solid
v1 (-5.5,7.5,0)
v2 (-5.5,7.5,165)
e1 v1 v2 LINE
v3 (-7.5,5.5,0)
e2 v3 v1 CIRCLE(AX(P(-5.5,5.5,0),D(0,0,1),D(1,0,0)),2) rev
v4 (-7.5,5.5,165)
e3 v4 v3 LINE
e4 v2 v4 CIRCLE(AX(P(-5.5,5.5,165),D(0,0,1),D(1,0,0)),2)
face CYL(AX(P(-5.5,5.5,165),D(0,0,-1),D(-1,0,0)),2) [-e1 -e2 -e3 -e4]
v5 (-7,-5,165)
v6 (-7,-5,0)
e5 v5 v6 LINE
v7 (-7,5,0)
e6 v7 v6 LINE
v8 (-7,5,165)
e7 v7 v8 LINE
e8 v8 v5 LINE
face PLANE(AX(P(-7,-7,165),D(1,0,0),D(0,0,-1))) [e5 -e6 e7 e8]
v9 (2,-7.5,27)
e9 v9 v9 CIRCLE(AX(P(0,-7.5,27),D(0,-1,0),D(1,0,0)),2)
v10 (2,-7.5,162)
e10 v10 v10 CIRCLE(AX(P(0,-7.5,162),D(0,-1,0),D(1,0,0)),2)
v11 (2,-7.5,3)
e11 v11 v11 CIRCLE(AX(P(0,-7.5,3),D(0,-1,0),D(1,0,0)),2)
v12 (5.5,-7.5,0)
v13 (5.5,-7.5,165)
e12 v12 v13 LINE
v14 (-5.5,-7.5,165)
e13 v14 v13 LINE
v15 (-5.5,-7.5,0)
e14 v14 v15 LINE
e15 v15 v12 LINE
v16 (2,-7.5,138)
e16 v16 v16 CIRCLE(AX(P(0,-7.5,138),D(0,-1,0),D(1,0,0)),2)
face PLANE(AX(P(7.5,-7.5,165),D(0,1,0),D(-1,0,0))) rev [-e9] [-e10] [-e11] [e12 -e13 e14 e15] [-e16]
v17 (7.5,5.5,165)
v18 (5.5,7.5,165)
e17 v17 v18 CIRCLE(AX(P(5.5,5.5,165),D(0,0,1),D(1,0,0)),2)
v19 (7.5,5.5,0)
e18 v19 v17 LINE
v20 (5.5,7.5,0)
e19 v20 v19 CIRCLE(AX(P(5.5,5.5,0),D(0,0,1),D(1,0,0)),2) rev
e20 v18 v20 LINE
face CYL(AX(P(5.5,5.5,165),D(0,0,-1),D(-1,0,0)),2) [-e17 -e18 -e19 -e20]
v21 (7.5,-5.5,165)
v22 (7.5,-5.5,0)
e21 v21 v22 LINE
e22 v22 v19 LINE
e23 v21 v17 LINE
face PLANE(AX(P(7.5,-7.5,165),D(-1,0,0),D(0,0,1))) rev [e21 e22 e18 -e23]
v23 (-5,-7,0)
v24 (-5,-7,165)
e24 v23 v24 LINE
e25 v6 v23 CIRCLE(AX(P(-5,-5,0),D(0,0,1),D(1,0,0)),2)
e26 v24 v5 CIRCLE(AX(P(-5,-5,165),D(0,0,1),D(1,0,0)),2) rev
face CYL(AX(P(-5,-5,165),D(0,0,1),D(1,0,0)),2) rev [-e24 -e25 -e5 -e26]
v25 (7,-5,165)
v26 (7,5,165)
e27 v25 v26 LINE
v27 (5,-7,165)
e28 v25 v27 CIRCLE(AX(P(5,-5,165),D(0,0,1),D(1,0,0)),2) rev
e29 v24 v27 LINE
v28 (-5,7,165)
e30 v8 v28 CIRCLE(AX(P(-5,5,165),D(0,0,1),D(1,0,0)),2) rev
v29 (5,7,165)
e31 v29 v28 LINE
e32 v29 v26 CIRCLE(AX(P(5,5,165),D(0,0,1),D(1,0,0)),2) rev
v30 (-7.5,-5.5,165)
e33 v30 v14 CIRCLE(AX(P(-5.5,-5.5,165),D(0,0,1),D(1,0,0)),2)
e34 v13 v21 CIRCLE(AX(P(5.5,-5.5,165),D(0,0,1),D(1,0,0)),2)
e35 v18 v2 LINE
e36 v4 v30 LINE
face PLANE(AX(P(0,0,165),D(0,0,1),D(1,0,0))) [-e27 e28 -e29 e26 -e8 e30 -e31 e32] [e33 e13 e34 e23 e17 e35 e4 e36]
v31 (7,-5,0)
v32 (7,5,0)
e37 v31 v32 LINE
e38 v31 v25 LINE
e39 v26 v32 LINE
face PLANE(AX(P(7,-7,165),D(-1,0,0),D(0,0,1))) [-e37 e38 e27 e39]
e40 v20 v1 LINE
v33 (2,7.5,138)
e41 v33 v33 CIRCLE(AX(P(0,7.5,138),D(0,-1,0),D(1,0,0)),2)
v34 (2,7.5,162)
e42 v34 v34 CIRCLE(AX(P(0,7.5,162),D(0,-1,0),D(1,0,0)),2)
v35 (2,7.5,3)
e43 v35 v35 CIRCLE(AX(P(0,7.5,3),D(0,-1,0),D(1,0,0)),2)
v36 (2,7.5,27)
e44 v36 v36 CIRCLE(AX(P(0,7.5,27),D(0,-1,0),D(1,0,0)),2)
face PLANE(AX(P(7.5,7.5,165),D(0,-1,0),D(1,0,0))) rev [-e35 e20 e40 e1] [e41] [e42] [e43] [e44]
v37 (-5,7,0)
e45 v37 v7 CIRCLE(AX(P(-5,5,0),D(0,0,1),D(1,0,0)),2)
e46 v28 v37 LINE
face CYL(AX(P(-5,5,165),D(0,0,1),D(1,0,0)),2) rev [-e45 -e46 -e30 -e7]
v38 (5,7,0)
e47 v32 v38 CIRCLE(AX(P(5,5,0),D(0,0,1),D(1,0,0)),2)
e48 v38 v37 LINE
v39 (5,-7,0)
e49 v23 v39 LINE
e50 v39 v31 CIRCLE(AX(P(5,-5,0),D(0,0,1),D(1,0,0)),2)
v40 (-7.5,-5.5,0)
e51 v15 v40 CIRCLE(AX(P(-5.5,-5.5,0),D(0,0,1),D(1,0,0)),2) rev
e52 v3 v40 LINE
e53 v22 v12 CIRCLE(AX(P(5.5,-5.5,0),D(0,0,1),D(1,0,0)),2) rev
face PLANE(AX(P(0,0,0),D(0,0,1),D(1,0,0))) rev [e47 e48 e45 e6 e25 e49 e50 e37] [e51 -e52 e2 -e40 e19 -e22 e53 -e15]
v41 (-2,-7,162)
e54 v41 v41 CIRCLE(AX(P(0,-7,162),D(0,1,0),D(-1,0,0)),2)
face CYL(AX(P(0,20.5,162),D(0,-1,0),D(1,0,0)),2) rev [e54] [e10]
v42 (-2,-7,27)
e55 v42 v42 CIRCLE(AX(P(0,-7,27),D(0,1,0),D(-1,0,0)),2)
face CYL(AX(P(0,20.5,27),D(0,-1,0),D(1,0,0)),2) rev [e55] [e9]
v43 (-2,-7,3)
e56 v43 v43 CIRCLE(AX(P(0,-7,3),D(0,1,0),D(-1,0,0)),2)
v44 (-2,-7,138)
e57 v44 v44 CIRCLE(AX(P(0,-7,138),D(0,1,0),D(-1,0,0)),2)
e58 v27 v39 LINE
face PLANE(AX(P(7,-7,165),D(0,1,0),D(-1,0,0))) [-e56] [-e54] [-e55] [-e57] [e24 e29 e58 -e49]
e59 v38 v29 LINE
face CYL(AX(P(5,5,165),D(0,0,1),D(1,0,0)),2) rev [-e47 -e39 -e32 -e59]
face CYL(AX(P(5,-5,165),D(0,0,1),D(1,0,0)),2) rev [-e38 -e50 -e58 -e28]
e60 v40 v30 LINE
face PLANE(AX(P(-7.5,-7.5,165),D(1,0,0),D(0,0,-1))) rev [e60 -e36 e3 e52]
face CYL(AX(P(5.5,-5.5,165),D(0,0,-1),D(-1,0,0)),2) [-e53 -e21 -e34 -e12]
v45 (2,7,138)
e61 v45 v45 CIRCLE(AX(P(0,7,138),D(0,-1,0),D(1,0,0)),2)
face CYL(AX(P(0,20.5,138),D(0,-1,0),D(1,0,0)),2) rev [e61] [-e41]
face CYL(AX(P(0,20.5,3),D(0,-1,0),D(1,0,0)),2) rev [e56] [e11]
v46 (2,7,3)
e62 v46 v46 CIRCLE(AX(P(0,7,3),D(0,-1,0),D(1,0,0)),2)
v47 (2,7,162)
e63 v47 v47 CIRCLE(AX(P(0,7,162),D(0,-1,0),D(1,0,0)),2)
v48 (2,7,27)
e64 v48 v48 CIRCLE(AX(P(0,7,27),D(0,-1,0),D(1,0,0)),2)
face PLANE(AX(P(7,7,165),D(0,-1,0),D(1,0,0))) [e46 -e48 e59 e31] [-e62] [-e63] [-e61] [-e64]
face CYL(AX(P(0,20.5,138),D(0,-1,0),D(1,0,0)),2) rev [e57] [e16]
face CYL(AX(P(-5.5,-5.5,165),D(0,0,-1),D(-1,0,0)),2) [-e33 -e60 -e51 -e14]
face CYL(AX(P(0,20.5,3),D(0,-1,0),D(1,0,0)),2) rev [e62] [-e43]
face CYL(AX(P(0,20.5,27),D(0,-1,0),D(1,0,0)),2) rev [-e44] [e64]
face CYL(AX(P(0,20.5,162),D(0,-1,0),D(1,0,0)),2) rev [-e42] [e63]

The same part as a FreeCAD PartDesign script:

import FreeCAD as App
import Part
import Sketcher
Q = App.Units.Quantity


def edges_at(feature, points):
    """Names of the edges that pass closest to the given points."""
    edges = feature.Shape.Edges
    near = lambda p: min(range(len(edges)), key=lambda i: edges[i].distToShape(Part.Vertex(*p))[0])
    return sorted({f"Edge{near(p) + 1}" for p in points})

doc = App.newDocument("Part")
params = doc.addObject("Spreadsheet::Sheet", "Params")
for row, (alias, value) in enumerate([
    ("sketch1_width", "15 mm"),
    ("sketch1_width2", "14 mm"),
    ("pad1_length", "165 mm"),
    ("fillet_radius", "2 mm"),
    ("sketch2_diameter", "4 mm"),
    ("pocket1_length", "28 mm"),
], start=1):
    params.set(f"A{row}", alias)
    params.set(f"B{row}", "=" + value)
    params.setAlias(f"B{row}", alias)

body = doc.addObject("PartDesign::Body", "Body")

# Sketch on XY plane
sketch1 = body.newObject("Sketcher::SketchObject", "Sketch")
sketch1.AttachmentSupport = (doc.getObject("XY_Plane"), [""])
sketch1.MapMode = "FlatFace"
sketch1.addGeometry(Part.LineSegment(App.Vector(-7.5, 7.5, 0), App.Vector(-7.5, -7.5, 0)), False)
sketch1.addGeometry(Part.LineSegment(App.Vector(-7.5, -7.5, 0), App.Vector(7.5, -7.5, 0)), False)
sketch1.addGeometry(Part.LineSegment(App.Vector(7.5, -7.5, 0), App.Vector(7.5, 7.5, 0)), False)
sketch1.addGeometry(Part.LineSegment(App.Vector(7.5, 7.5, 0), App.Vector(-7.5, 7.5, 0)), False)
sketch1.addGeometry(Part.LineSegment(App.Vector(7, -7, 0), App.Vector(-7, -7, 0)), False)
sketch1.addGeometry(Part.LineSegment(App.Vector(-7, -7, 0), App.Vector(-7, 7, 0)), False)
sketch1.addGeometry(Part.LineSegment(App.Vector(-7, 7, 0), App.Vector(7, 7, 0)), False)
sketch1.addGeometry(Part.LineSegment(App.Vector(7, 7, 0), App.Vector(7, -7, 0)), False)
sketch1.addConstraint(Sketcher.Constraint("Coincident", 0, 2, 1, 1))
sketch1.addConstraint(Sketcher.Constraint("Coincident", 1, 2, 2, 1))
sketch1.addConstraint(Sketcher.Constraint("Coincident", 2, 2, 3, 1))
sketch1.addConstraint(Sketcher.Constraint("Coincident", 3, 2, 0, 1))
sketch1.addConstraint(Sketcher.Constraint("Coincident", 4, 2, 5, 1))
sketch1.addConstraint(Sketcher.Constraint("Coincident", 5, 2, 6, 1))
sketch1.addConstraint(Sketcher.Constraint("Coincident", 6, 2, 7, 1))
sketch1.addConstraint(Sketcher.Constraint("Coincident", 7, 2, 4, 1))
sketch1.addConstraint(Sketcher.Constraint("Vertical", 0))
sketch1.addConstraint(Sketcher.Constraint("Horizontal", 1))
sketch1.addConstraint(Sketcher.Constraint("Vertical", 2))
sketch1.addConstraint(Sketcher.Constraint("Horizontal", 3))
sketch1.addConstraint(Sketcher.Constraint("Horizontal", 4))
sketch1.addConstraint(Sketcher.Constraint("Vertical", 5))
sketch1.addConstraint(Sketcher.Constraint("Horizontal", 6))
sketch1.addConstraint(Sketcher.Constraint("Vertical", 7))
sketch1.addConstraint(Sketcher.Constraint("Symmetric", 0, 2, 2, 2, -1, 1))
sketch1.addConstraint(Sketcher.Constraint("Symmetric", 4, 2, 6, 2, -1, 1))
sketch1.addConstraint(Sketcher.Constraint("Equal", 3, 0))
sketch1.addConstraint(Sketcher.Constraint("Equal", 6, 5))
sketch1.addConstraint(Sketcher.Constraint("DistanceX", 1, 1, 1, 2, Q("15 mm")))
sketch1.addConstraint(Sketcher.Constraint("DistanceX", 4, 2, 4, 1, Q("14 mm")))
sketch1.setExpression("Constraints[20]", "Params.sketch1_width")
sketch1.setExpression("Constraints[21]", "Params.sketch1_width2")
pad1 = body.newObject("PartDesign::Pad", "Pad")
pad1.Profile = sketch1
pad1.setExpression("Length", "Params.pad1_length")
doc.recompute()

fillet = body.newObject("PartDesign::Fillet", "Fillet")
fillet.Base = (pad1, edges_at(pad1, [
    (-7, 7, 82.5),
    (-7, -7, 82.5),
    (7, -7, 82.5),
    (7, 7, 82.5),
    (-7.5, 7.5, 82.5),
    (7.5, 7.5, 82.5),
    (7.5, -7.5, 82.5),
    (-7.5, -7.5, 82.5),
]))
fillet.setExpression("Radius", "Params.fillet_radius")

# Sketch on XZ plane
sketch2 = body.newObject("Sketcher::SketchObject", "Sketch001")
sketch2.AttachmentSupport = (doc.getObject("XZ_Plane"), [""])
sketch2.MapMode = "FlatFace"
sketch2.AttachmentOffset = App.Placement(App.Vector(0, 0, 7.5), App.Rotation())
sketch2.addGeometry(Part.Circle(App.Vector(0, 162, 0), App.Vector(0, 0, 1), 2), False)
sketch2.addGeometry(Part.Circle(App.Vector(0, 138, 0), App.Vector(0, 0, 1), 2), False)
sketch2.addGeometry(Part.Circle(App.Vector(0, 27, 0), App.Vector(0, 0, 1), 2), False)
sketch2.addGeometry(Part.Circle(App.Vector(0, 3, 0), App.Vector(0, 0, 1), 2), False)
sketch2.addConstraint(Sketcher.Constraint("Equal", 0, 1))
sketch2.addConstraint(Sketcher.Constraint("Equal", 1, 2))
sketch2.addConstraint(Sketcher.Constraint("Equal", 2, 3))
sketch2.addConstraint(Sketcher.Constraint("PointOnObject", 0, 3, -2))
sketch2.addConstraint(Sketcher.Constraint("PointOnObject", 1, 3, -2))
sketch2.addConstraint(Sketcher.Constraint("PointOnObject", 2, 3, -2))
sketch2.addConstraint(Sketcher.Constraint("PointOnObject", 3, 3, -2))
sketch2.addConstraint(Sketcher.Constraint("Diameter", 0, Q("4 mm")))
sketch2.addConstraint(Sketcher.Constraint("DistanceY", -1, 1, 0, 3, Q("162 mm")))
sketch2.addConstraint(Sketcher.Constraint("DistanceY", -1, 1, 1, 3, Q("138 mm")))
sketch2.addConstraint(Sketcher.Constraint("DistanceY", -1, 1, 2, 3, Q("27 mm")))
sketch2.addConstraint(Sketcher.Constraint("DistanceY", -1, 1, 3, 3, Q("3 mm")))
sketch2.setExpression("Constraints[7]", "Params.sketch2_diameter")
pocket1 = body.newObject("PartDesign::Pocket", "Pocket")
pocket1.Profile = sketch2
pocket1.setExpression("Length", "Params.pocket1_length")

doc.recompute()
